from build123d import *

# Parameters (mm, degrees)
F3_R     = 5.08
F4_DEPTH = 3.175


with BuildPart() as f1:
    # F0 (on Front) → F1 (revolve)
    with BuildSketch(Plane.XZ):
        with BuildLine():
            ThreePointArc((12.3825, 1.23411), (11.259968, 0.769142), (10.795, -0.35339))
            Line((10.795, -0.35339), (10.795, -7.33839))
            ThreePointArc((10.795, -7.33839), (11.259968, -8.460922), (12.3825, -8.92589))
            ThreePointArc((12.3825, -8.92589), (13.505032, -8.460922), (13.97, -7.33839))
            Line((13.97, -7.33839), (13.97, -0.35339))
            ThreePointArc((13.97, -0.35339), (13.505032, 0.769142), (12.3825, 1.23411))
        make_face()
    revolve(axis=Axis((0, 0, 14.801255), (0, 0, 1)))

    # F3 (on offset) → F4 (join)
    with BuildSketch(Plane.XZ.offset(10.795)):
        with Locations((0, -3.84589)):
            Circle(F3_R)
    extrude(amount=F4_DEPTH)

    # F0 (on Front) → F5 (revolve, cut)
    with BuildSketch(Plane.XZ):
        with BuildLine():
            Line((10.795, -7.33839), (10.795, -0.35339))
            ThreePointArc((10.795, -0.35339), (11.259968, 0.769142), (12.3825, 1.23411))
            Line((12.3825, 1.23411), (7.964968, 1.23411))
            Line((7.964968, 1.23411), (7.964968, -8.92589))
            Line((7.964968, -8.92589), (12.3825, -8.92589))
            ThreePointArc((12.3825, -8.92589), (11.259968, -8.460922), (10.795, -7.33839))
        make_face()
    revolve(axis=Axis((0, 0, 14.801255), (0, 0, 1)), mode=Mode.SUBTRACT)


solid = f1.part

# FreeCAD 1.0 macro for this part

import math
import FreeCAD as App
import Part
import Sketcher
Q = App.Units.Quantity

doc = App.newDocument("Part")
params = doc.addObject("Spreadsheet::Sheet", "Params")
for row, (alias, value) in enumerate([
    ("sketch1_radius", "0.0625 in"),
    ("sketch1_height", "0.275 in"),
    ("revolution_angle", "360 deg"),
    ("sketch2_diameter", "0.4 in"),
    ("pad1_length", "0.125 in"),
    ("sketch3_height", "0.4 in"),
    ("sketch3_radius", "0.0625 in"),
    ("groove_angle", "360 deg"),
], start=1):
    params.set(f"A{row}", alias)
    params.set(f"B{row}", "=" + value)
    params.setAlias(f"B{row}", alias)

body = doc.addObject("PartDesign::Body", "Body")

sketch1 = doc.addObject("Sketcher::SketchObject", "Sketch")
body.addObject(sketch1)
sketch1.AttachmentSupport = (doc.XZ_Plane, [""])
sketch1.MapMode = "FlatFace"
sketch1.addGeometry(Part.ArcOfCircle(Part.Circle(App.Vector(12.4, -0.4, 0), App.Vector(0, 0, 1), 1.6), math.radians(90), math.radians(180)), False)
sketch1.addGeometry(Part.LineSegment(App.Vector(10.8, -0.4, 0), App.Vector(10.8, -7.3, 0)), False)
sketch1.addGeometry(Part.ArcOfCircle(Part.Circle(App.Vector(12.4, -7.3, 0), App.Vector(0, 0, 1), 1.6), math.radians(-180), math.radians(-90)), False)
sketch1.addGeometry(Part.ArcOfCircle(Part.Circle(App.Vector(12.4, -7.3, 0), App.Vector(0, 0, 1), 1.6), math.radians(-90), math.radians(0)), False)
sketch1.addGeometry(Part.LineSegment(App.Vector(14, -7.3, 0), App.Vector(14, -0.4, 0)), False)
sketch1.addGeometry(Part.ArcOfCircle(Part.Circle(App.Vector(12.4, -0.4, 0), App.Vector(0, 0, 1), 1.6), math.radians(0), math.radians(90)), False)
sketch1.addConstraint(Sketcher.Constraint("Tangent", 0, 2, 1, 1))
sketch1.addConstraint(Sketcher.Constraint("Tangent", 1, 2, 2, 1))
sketch1.addConstraint(Sketcher.Constraint("Tangent", 2, 2, 3, 1))
sketch1.addConstraint(Sketcher.Constraint("Tangent", 3, 2, 4, 1))
sketch1.addConstraint(Sketcher.Constraint("Tangent", 4, 2, 5, 1))
sketch1.addConstraint(Sketcher.Constraint("Tangent", 5, 2, 0, 1))
sketch1.addConstraint(Sketcher.Constraint("Vertical", 1))
sketch1.addConstraint(Sketcher.Constraint("Vertical", 4))
sketch1.addConstraint(Sketcher.Constraint("Equal", 0, 2))
sketch1.addConstraint(Sketcher.Constraint("Equal", 2, 3))
sketch1.addConstraint(Sketcher.Constraint("Vertical", 5, 3, 2, 2))
sketch1.addConstraint(Sketcher.Constraint("Vertical", 2, 2, 5, 2))
sketch1.addConstraint(Sketcher.Constraint("Radius", 0, Q("0.0625 in")))
sketch1.addConstraint(Sketcher.Constraint("DistanceY", 1, 2, 1, 1, Q("0.275 in")))
sketch1.addConstraint(Sketcher.Constraint("DistanceX", -1, 1, 3, 2, Q("0.55 in")))
sketch1.addConstraint(Sketcher.Constraint("DistanceY", 0, 3, -1, 1, Q("0.35339 mm")))
sketch1.setExpression("Constraints[12]", "Params.sketch1_radius")
sketch1.setExpression("Constraints[13]", "Params.sketch1_height")
revolution = doc.addObject("PartDesign::Revolution", "Revolution")
body.addObject(revolution)
revolution.Profile = sketch1
revolution.ReferenceAxis = (sketch1, ["V_Axis"])
revolution.setExpression("Angle", "Params.revolution_angle")

sketch2 = doc.addObject("Sketcher::SketchObject", "Sketch001")
body.addObject(sketch2)
sketch2.AttachmentSupport = (doc.XZ_Plane, [""])
sketch2.MapMode = "FlatFace"
sketch2.AttachmentOffset = App.Placement(App.Vector(0, 0, 0.425 * 25.4), App.Rotation())
sketch2.addGeometry(Part.Circle(App.Vector(0, -4, 0), App.Vector(0, 0, 1), 5), False)
sketch2.addConstraint(Sketcher.Constraint("PointOnObject", 0, 3, -2))
sketch2.addConstraint(Sketcher.Constraint("Diameter", 0, Q("0.4 in")))
sketch2.addConstraint(Sketcher.Constraint("DistanceY", 0, 3, -1, 1, Q("3.84589 mm")))
sketch2.setExpression("Constraints[1]", "Params.sketch2_diameter")
pad1 = doc.addObject("PartDesign::Pad", "Pad")
body.addObject(pad1)
pad1.Profile = sketch2
pad1.setExpression("Length", "Params.pad1_length")

sketch3 = doc.addObject("Sketcher::SketchObject", "Sketch002")
body.addObject(sketch3)
sketch3.AttachmentSupport = (doc.XZ_Plane, [""])
sketch3.MapMode = "FlatFace"
sketch3.addGeometry(Part.LineSegment(App.Vector(10.8, -7.3, 0), App.Vector(10.8, -0.4, 0)), False)
sketch3.addGeometry(Part.ArcOfCircle(Part.Circle(App.Vector(12.4, -0.4, 0), App.Vector(0, 0, 1), 1.6), math.radians(90), math.radians(180)), False)
sketch3.addGeometry(Part.LineSegment(App.Vector(12.4, 1.2, 0), App.Vector(8, 1.2, 0)), False)
sketch3.addGeometry(Part.LineSegment(App.Vector(8, 1.2, 0), App.Vector(8, -8.9, 0)), False)
sketch3.addGeometry(Part.LineSegment(App.Vector(8, -8.9, 0), App.Vector(12.4, -8.9, 0)), False)
sketch3.addGeometry(Part.ArcOfCircle(Part.Circle(App.Vector(12.4, -7.3, 0), App.Vector(0, 0, 1), 1.6), math.radians(-180), math.radians(-90)), False)
sketch3.addConstraint(Sketcher.Constraint("Tangent", 0, 2, 1, 2))
sketch3.addConstraint(Sketcher.Constraint("Tangent", 1, 1, 2, 1))
sketch3.addConstraint(Sketcher.Constraint("Coincident", 2, 2, 3, 1))
sketch3.addConstraint(Sketcher.Constraint("Coincident", 3, 2, 4, 1))
sketch3.addConstraint(Sketcher.Constraint("Tangent", 4, 2, 5, 2))
sketch3.addConstraint(Sketcher.Constraint("Tangent", 5, 1, 0, 1))
sketch3.addConstraint(Sketcher.Constraint("Vertical", 0))
sketch3.addConstraint(Sketcher.Constraint("Horizontal", 2))
sketch3.addConstraint(Sketcher.Constraint("Vertical", 3))
sketch3.addConstraint(Sketcher.Constraint("Horizontal", 4))
sketch3.addConstraint(Sketcher.Constraint("Equal", 1, 5))
sketch3.addConstraint(Sketcher.Constraint("DistanceY", 3, 2, 3, 1, Q("0.4 in")))
sketch3.addConstraint(Sketcher.Constraint("Radius", 1, Q("0.0625 in")))
sketch3.addConstraint(Sketcher.Constraint("DistanceX", -1, 1, 0, 2, Q("0.425 in")))
sketch3.addConstraint(Sketcher.Constraint("DistanceX", 2, 2, 2, 1, Q("4.417532 mm")))
sketch3.addConstraint(Sketcher.Constraint("DistanceY", 1, 3, -1, 1, Q("0.35339 mm")))
sketch3.setExpression("Constraints[11]", "Params.sketch3_height")
sketch3.setExpression("Constraints[12]", "Params.sketch3_radius")
groove = doc.addObject("PartDesign::Groove", "Groove")
body.addObject(groove)
groove.Profile = sketch3
groove.ReferenceAxis = (sketch3, ["V_Axis"])
groove.setExpression("Angle", "Params.groove_angle")

doc.recompute()
